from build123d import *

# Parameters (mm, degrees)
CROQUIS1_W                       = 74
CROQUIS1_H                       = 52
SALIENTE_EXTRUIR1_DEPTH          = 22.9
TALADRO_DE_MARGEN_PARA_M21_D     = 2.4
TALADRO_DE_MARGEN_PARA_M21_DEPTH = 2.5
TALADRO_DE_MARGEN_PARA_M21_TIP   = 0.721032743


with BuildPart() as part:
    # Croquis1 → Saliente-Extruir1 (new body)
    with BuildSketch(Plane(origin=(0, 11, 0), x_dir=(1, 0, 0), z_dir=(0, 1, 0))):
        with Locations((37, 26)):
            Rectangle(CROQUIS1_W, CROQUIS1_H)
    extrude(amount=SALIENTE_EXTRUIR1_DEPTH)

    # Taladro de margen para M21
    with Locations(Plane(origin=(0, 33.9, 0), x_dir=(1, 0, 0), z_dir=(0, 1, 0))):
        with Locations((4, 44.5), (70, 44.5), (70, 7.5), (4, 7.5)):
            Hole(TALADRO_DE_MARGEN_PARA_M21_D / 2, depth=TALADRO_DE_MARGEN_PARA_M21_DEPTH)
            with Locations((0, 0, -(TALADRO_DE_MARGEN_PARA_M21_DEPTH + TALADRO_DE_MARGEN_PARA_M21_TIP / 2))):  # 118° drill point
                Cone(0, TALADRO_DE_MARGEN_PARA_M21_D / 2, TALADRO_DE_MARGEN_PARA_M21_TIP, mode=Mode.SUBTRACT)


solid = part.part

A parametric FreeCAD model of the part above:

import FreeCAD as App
import Part
import Sketcher


def add_polygon(sketch, points):
    """Adds a closed chain of lines whose ends are joined by coincident constraints."""
    first, n = sketch.GeometryCount, len(points)
    for a, b in zip(points, points[1:] + points[:1]):
        sketch.addGeometry(Part.LineSegment(App.Vector(*a, 0), App.Vector(*b, 0)), False)
    for i in range(n):
        sketch.addConstraint(Sketcher.Constraint("Coincident", first + i, 2, first + (i + 1) % n, 1))

doc = App.newDocument("Part")
params = doc.addObject("Spreadsheet::Sheet", "Params")
for row, (alias, value) in enumerate([
    ("sketch1_width", "74 mm"),
    ("sketch1_height", "52 mm"),
    ("pad1_length", "22.9 mm"),
    ("sketch2_diameter", "2.4 mm"),
    ("hole_diameter", "2.4 mm"),
    ("hole_depth", "2.5 mm"),
], start=1):
    params.set(f"A{row}", alias)
    params.set(f"B{row}", "=" + value)
    params.setAlias(f"B{row}", alias)

body = doc.addObject("PartDesign::Body", "Body")

# Sketch on XZ plane
sketch1 = body.newObject("Sketcher::SketchObject", "Sketch")
sketch1.AttachmentSupport = (doc.getObject("XZ_Plane"), [""])
sketch1.MapMode = "FlatFace"
sketch1.AttachmentOffset = App.Placement(App.Vector(0, 0, -11), App.Rotation())
add_polygon(sketch1, [(0, -52), (0, 0), (74, 0), (74, -52)])  # lines 0-3
sketch1.addConstraint([
    Sketcher.Constraint("Vertical", 0),
    Sketcher.Constraint("Horizontal", 1),
    Sketcher.Constraint("Vertical", 2),
    Sketcher.Constraint("Horizontal", 3),
    Sketcher.Constraint("Coincident", 0, 2, -1, 1),
    Sketcher.Constraint("DistanceX", 1, 1, 1, 2, 74.0),
    Sketcher.Constraint("DistanceY", 0, 1, 0, 2, 52.0),
])
sketch1.setExpression("Constraints[9]", "Params.sketch1_width")
sketch1.setExpression("Constraints[10]", "Params.sketch1_height")
pad1 = body.newObject("PartDesign::Pad", "Pad")
pad1.Profile = sketch1
pad1.setExpression("Length", "Params.pad1_length")
pad1.Reversed = True

# Sketch on XZ plane
sketch2 = body.newObject("Sketcher::SketchObject", "Sketch001")
sketch2.AttachmentSupport = (doc.getObject("XZ_Plane"), [""])
sketch2.MapMode = "FlatFace"
sketch2.AttachmentOffset = App.Placement(App.Vector(0, 0, -33.9), App.Rotation())
sketch2.addGeometry([
    Part.Circle(App.Vector(4, -44.5, 0), App.Vector(0, 0, 1), 1.2),
    Part.Circle(App.Vector(70, -44.5, 0), App.Vector(0, 0, 1), 1.2),
    Part.Circle(App.Vector(70, -7.5, 0), App.Vector(0, 0, 1), 1.2),
    Part.Circle(App.Vector(4, -7.5, 0), App.Vector(0, 0, 1), 1.2),
], False)
sketch2.addConstraint([
    Sketcher.Constraint("Equal", 0, 1),
    Sketcher.Constraint("Equal", 1, 2),
    Sketcher.Constraint("Equal", 2, 3),
    Sketcher.Constraint("Horizontal", 0, 3, 1, 3),
    Sketcher.Constraint("Horizontal", 2, 3, 3, 3),
    Sketcher.Constraint("Vertical", 1, 3, 2, 3),
    Sketcher.Constraint("Vertical", 0, 3, 3, 3),
    Sketcher.Constraint("Diameter", 0, 2.4),
    Sketcher.Constraint("DistanceX", -1, 1, 0, 3, 4.0),
    Sketcher.Constraint("DistanceX", -1, 1, 1, 3, 70.0),
    Sketcher.Constraint("DistanceY", 1, 3, 2, 3, 37.0),
    Sketcher.Constraint("DistanceY", 0, 3, -1, 1, 44.5),
])
sketch2.setExpression("Constraints[7]", "Params.sketch2_diameter")
doc.recompute()
hole = body.newObject("PartDesign::Hole", "Hole")
hole.Profile = sketch2
hole.ThreadType = "None"
hole.setExpression("Diameter", "Params.hole_diameter")
hole.DepthType = "Dimension"
hole.setExpression("Depth", "Params.hole_depth")
hole.DrillPoint = "Angled"
hole.DrillPointAngle = 118
hole.Reversed = True

doc.recompute()
